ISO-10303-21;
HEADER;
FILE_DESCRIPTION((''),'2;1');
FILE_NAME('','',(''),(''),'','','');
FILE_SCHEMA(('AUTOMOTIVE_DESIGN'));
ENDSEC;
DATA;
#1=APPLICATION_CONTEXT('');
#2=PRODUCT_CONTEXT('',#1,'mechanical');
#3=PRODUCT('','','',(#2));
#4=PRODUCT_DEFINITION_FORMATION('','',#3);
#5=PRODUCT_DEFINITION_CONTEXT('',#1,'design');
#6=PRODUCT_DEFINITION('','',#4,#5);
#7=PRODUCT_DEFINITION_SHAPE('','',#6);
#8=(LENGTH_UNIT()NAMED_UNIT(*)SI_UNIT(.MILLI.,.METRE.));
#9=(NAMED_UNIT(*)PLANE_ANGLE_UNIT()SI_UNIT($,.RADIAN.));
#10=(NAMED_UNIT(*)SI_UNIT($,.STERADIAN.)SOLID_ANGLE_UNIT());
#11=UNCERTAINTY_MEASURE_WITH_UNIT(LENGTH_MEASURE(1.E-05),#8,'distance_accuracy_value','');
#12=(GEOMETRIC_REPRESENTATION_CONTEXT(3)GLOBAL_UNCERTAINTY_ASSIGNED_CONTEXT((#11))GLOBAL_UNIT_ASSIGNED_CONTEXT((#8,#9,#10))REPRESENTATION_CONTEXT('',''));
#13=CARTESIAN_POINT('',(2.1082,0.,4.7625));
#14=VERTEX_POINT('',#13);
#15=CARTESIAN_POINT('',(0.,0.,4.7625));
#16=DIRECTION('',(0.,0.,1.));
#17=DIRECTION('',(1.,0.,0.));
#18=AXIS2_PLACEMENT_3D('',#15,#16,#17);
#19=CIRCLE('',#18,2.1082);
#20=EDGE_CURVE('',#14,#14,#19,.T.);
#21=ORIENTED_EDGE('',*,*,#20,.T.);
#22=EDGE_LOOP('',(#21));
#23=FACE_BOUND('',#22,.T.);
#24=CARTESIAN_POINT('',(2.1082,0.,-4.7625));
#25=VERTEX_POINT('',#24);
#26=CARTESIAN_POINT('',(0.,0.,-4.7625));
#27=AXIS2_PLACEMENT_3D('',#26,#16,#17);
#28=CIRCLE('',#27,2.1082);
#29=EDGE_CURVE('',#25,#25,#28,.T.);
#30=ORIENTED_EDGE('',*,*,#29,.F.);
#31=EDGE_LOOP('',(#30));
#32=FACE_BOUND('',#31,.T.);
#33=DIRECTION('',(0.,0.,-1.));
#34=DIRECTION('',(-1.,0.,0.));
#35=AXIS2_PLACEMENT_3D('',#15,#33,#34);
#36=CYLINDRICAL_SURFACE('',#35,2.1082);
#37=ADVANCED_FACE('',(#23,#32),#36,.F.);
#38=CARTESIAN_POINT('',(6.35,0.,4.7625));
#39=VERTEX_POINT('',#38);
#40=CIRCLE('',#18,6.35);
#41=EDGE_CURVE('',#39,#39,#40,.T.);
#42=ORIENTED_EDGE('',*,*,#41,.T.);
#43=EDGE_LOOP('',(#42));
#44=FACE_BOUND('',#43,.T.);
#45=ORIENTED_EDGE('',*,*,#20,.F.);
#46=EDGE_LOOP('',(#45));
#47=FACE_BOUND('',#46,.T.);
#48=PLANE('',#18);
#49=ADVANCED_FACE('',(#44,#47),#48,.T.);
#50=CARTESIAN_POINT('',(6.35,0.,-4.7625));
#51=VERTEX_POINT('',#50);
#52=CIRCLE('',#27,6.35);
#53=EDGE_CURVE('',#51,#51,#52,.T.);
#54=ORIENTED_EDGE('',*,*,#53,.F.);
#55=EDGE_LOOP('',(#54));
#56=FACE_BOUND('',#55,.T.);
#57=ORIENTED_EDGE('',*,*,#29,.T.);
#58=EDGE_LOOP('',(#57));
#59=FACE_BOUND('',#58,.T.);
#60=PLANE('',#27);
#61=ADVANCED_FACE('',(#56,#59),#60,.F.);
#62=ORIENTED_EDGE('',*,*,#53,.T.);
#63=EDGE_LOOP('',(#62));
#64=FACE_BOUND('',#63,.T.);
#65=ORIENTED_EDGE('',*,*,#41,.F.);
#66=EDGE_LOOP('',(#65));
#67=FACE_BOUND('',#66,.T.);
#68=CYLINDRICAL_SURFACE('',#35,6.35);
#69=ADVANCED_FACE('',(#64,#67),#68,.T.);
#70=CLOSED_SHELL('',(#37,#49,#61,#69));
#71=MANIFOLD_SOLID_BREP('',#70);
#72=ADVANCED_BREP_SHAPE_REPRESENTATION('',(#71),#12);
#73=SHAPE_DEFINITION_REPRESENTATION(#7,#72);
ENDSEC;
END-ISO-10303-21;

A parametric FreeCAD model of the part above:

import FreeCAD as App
import Part
import Sketcher

V = App.Vector
Q = App.Units.Quantity

doc = App.newDocument("Part")
body = doc.addObject("PartDesign::Body", "Body")

# Sketch on XY plane
sketch1 = body.newObject("Sketcher::SketchObject", "Sketch")
sketch1.AttachmentSupport = (doc.getObject("XY_Plane"), [""])
sketch1.MapMode = "FlatFace"
sketch1.addGeometry(Part.Circle(V(0, 0, 0), V(0, 0, 1), 6.3), False)
sketch1.addGeometry(Part.Circle(V(0, 0, 0), V(0, 0, 1), 2.1), False)
sketch1.addConstraint(Sketcher.Constraint("Coincident", 0, 3, -1, 1))
sketch1.addConstraint(Sketcher.Constraint("Coincident", 1, 3, -1, 1))
sketch1.addConstraint(Sketcher.Constraint("Diameter", 0, Q("0.5 in")))
sketch1.addConstraint(Sketcher.Constraint("Diameter", 1, Q("0.166 in")))
pad1 = body.newObject("PartDesign::Pad", "Pad")
pad1.Profile = sketch1
pad1.Length = Q("0.375 in")
pad1.Midplane = True

doc.recompute()
